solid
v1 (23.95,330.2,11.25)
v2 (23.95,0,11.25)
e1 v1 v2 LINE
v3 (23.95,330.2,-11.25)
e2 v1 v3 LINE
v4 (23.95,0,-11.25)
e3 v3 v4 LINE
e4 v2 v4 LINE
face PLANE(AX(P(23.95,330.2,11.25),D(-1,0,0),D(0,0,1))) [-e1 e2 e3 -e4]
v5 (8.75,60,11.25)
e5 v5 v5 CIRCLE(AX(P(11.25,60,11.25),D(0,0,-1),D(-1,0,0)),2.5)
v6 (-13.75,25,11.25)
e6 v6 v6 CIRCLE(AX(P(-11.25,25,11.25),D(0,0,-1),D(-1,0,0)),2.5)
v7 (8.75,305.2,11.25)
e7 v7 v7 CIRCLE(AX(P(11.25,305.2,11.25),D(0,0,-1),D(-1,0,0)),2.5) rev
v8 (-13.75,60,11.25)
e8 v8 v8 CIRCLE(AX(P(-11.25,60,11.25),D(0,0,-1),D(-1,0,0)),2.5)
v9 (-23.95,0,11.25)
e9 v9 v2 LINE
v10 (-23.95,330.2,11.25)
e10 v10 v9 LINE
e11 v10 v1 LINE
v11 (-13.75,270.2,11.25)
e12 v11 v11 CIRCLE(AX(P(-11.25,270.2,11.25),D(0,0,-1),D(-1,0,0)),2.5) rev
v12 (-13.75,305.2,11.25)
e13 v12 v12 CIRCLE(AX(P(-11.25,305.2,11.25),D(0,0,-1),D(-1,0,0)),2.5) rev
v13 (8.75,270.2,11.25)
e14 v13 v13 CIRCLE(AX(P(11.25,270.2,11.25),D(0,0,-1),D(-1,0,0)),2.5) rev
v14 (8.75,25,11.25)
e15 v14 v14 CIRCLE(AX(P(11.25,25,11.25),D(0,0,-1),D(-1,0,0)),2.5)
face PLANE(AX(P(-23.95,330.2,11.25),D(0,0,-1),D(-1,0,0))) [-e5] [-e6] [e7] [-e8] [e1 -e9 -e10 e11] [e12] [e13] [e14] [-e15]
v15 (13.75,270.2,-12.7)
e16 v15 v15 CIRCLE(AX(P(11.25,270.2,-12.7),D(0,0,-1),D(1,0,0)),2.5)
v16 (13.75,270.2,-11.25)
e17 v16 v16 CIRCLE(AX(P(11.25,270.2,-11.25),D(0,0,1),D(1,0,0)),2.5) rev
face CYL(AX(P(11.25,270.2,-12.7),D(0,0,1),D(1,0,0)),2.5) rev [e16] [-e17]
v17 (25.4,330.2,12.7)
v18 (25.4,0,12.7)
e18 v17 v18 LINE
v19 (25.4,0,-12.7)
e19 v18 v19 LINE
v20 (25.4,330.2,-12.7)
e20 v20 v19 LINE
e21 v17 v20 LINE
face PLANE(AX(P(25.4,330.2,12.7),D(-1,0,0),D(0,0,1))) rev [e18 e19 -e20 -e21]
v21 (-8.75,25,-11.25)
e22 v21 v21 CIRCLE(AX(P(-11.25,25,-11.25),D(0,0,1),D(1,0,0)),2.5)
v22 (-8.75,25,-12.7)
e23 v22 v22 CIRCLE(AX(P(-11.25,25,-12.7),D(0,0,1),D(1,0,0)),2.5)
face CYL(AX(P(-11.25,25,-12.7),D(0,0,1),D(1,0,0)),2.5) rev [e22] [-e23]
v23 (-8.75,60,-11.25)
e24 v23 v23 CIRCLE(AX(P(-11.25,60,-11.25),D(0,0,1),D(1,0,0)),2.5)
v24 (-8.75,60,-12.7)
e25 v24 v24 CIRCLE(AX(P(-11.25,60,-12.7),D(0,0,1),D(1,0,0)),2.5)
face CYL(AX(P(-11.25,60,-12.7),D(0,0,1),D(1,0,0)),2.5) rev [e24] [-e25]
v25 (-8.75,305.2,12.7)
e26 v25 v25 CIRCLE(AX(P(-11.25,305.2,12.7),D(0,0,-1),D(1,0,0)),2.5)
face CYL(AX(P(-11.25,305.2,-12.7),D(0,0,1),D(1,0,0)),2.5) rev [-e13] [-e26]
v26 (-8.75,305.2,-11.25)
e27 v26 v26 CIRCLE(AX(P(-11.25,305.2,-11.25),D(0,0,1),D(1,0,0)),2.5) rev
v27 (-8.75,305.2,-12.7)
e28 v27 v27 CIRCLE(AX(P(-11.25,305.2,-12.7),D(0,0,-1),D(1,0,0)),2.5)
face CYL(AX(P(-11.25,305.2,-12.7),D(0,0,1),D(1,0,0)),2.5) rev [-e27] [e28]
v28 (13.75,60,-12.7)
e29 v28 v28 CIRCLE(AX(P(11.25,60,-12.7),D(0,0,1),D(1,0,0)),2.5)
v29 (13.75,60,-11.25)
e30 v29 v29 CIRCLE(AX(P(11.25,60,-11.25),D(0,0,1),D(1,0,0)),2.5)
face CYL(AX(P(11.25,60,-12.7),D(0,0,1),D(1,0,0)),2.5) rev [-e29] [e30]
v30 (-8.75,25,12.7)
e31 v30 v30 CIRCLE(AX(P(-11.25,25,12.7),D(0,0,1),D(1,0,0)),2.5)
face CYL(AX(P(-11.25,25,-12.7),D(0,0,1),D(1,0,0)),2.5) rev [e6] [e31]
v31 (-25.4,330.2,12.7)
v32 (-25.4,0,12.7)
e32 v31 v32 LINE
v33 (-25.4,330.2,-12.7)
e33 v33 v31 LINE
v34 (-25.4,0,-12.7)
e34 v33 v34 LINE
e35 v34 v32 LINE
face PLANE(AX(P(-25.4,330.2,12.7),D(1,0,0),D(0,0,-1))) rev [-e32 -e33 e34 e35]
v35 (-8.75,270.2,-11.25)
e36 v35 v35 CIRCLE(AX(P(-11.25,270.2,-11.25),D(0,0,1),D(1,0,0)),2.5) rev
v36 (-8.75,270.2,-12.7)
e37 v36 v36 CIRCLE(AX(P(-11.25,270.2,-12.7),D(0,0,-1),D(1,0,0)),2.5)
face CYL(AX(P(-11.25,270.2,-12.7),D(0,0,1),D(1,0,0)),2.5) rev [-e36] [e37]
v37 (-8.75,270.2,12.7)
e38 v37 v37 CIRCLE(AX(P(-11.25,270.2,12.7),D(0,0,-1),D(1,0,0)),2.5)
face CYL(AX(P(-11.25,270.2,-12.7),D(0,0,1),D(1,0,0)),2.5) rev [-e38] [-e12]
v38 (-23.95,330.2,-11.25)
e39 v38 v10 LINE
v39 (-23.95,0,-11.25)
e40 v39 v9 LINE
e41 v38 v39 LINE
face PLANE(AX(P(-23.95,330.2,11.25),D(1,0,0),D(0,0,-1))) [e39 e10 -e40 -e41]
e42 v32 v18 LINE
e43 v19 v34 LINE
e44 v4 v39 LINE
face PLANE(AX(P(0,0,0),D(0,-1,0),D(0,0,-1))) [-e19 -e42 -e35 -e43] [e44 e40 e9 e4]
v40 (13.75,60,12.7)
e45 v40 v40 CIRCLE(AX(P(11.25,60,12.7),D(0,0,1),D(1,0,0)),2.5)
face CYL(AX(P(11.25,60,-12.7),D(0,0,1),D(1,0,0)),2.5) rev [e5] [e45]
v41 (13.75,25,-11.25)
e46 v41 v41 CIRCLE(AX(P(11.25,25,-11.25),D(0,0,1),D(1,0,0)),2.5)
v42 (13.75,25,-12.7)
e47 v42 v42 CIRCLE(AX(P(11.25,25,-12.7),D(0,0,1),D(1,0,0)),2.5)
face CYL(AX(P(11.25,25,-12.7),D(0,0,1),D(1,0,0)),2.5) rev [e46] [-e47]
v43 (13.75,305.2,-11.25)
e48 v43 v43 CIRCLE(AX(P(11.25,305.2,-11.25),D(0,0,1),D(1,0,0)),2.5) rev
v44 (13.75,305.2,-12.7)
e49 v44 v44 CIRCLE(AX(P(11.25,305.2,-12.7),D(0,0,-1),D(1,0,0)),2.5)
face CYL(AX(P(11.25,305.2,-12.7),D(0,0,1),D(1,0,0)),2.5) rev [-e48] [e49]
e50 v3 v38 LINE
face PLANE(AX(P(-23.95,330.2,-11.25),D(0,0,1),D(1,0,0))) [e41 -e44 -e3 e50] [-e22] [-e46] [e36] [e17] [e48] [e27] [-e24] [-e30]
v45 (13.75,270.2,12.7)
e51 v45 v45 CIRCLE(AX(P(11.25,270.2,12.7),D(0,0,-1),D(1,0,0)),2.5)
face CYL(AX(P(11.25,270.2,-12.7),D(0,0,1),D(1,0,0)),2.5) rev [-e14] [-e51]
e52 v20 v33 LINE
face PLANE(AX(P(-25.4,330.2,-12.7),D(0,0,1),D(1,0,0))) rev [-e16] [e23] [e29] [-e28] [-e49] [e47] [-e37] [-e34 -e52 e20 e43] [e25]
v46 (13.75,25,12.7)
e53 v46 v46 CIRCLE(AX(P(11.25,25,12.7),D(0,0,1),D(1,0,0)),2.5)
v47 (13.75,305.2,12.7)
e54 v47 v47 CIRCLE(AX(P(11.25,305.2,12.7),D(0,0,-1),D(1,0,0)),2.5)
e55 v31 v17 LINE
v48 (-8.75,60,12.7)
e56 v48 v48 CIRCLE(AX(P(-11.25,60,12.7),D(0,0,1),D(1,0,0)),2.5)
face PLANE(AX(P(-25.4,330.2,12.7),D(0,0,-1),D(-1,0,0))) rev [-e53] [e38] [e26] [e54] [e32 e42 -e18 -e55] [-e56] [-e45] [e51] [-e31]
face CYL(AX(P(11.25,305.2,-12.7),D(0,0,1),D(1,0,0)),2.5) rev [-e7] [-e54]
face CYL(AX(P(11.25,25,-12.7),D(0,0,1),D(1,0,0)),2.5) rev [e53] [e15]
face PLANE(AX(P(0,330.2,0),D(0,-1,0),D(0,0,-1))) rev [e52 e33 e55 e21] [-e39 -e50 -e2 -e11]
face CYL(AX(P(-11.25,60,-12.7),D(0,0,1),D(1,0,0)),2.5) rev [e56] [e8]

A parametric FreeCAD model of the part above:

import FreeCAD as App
import Part
import Sketcher
from FreeCAD import Vector


def add_polygon(sketch, points):
    """Adds a closed chain of lines whose ends are joined by coincident constraints."""
    first, n = sketch.GeometryCount, len(points)
    for a, b in zip(points, points[1:] + points[:1]):
        sketch.addGeometry(Part.LineSegment(App.Vector(*a, 0), App.Vector(*b, 0)), False)
    for i in range(n):
        sketch.addConstraint(Sketcher.Constraint("Coincident", first + i, 2, first + (i + 1) % n, 1))

doc = App.newDocument("Part")
body = doc.addObject("PartDesign::Body", "Body")

# Sketch on XZ plane
sketch1 = body.newObject("Sketcher::SketchObject", "Sketch")
sketch1.AttachmentSupport = (doc.getObject("XZ_Plane"), [""])
sketch1.MapMode = "FlatFace"
add_polygon(sketch1, [(-25.4, -12.7), (-25.4, 12.7), (25.4, 12.7), (25.4, -12.7)])  # lines 0-3
add_polygon(sketch1, [(23.95, 11.25), (-23.95, 11.25), (-23.95, -11.25), (23.95, -11.25)])  # lines 4-7
sketch1.addConstraint(Sketcher.Constraint("Vertical", 0))
sketch1.addConstraint(Sketcher.Constraint("Horizontal", 1))
sketch1.addConstraint(Sketcher.Constraint("Vertical", 2))
sketch1.addConstraint(Sketcher.Constraint("Horizontal", 3))
sketch1.addConstraint(Sketcher.Constraint("Horizontal", 4))
sketch1.addConstraint(Sketcher.Constraint("Vertical", 5))
sketch1.addConstraint(Sketcher.Constraint("Horizontal", 6))
sketch1.addConstraint(Sketcher.Constraint("Vertical", 7))
sketch1.addConstraint(Sketcher.Constraint("Symmetric", 0, 2, 2, 2, -1, 1))
sketch1.addConstraint(Sketcher.Constraint("Symmetric", 4, 2, 6, 2, -1, 1))
sketch1.addConstraint(Sketcher.Constraint("DistanceX", 1, 1, 1, 2, 50.8))
sketch1.addConstraint(Sketcher.Constraint("DistanceX", 4, 2, 4, 1, 47.9))
sketch1.addConstraint(Sketcher.Constraint("DistanceY", 0, 1, 0, 2, 25.4))
sketch1.addConstraint(Sketcher.Constraint("DistanceY", 5, 2, 5, 1, 22.5))
pad1 = body.newObject("PartDesign::Pad", "Pad")
pad1.Profile = sketch1
pad1.Length = 330.2
pad1.Reversed = True

# Sketch on XY plane
sketch2 = body.newObject("Sketcher::SketchObject", "Sketch001")
sketch2.AttachmentSupport = (doc.getObject("XY_Plane"), [""])
sketch2.MapMode = "FlatFace"
sketch2.AttachmentOffset = App.Placement(Vector(0, 0, 12.7), App.Rotation())
sketch2.addGeometry(Part.Circle(Vector(-11.25, 60, 0), Vector(0, 0, 1), 2.5), False)
sketch2.addGeometry(Part.Circle(Vector(-11.25, 25, 0), Vector(0, 0, 1), 2.5), False)
sketch2.addGeometry(Part.Circle(Vector(11.25, 25, 0), Vector(0, 0, 1), 2.5), False)
sketch2.addGeometry(Part.Circle(Vector(11.25, 60, 0), Vector(0, 0, 1), 2.5), False)
sketch2.addConstraint(Sketcher.Constraint("Equal", 0, 1))
sketch2.addConstraint(Sketcher.Constraint("Equal", 1, 2))
sketch2.addConstraint(Sketcher.Constraint("Equal", 2, 3))
sketch2.addConstraint(Sketcher.Constraint("Symmetric", 1, 3, 2, 3, -2))
sketch2.addConstraint(Sketcher.Constraint("Symmetric", 0, 3, 3, 3, -2))
sketch2.addConstraint(Sketcher.Constraint("Vertical", 0, 3, 1, 3))
sketch2.addConstraint(Sketcher.Constraint("Diameter", 0, 5.0))
sketch2.addConstraint(Sketcher.Constraint("DistanceY", -1, 1, 0, 3, 60.0))
sketch2.addConstraint(Sketcher.Constraint("DistanceY", -1, 1, 1, 3, 25.0))
sketch2.addConstraint(Sketcher.Constraint("DistanceX", 1, 3, 2, 3, 22.5))
pocket1 = body.newObject("PartDesign::Pocket", "Pocket")
pocket1.Profile = sketch2
pocket1.Type = "ThroughAll"
doc.recompute()

datumplane = body.newObject("PartDesign::Plane", "DatumPlane")
datumplane.AttachmentSupport = (doc.getObject("XZ_Plane"), [""])
datumplane.MapMode = "FlatFace"
datumplane.AttachmentOffset = App.Placement(Vector(0, 0, -165.1), App.Rotation())
mirrored = body.newObject("PartDesign::Mirrored", "Mirrored")
mirrored.Originals = [pocket1]
mirrored.MirrorPlane = (datumplane, [""])
body.Tip = mirrored

doc.recompute()
